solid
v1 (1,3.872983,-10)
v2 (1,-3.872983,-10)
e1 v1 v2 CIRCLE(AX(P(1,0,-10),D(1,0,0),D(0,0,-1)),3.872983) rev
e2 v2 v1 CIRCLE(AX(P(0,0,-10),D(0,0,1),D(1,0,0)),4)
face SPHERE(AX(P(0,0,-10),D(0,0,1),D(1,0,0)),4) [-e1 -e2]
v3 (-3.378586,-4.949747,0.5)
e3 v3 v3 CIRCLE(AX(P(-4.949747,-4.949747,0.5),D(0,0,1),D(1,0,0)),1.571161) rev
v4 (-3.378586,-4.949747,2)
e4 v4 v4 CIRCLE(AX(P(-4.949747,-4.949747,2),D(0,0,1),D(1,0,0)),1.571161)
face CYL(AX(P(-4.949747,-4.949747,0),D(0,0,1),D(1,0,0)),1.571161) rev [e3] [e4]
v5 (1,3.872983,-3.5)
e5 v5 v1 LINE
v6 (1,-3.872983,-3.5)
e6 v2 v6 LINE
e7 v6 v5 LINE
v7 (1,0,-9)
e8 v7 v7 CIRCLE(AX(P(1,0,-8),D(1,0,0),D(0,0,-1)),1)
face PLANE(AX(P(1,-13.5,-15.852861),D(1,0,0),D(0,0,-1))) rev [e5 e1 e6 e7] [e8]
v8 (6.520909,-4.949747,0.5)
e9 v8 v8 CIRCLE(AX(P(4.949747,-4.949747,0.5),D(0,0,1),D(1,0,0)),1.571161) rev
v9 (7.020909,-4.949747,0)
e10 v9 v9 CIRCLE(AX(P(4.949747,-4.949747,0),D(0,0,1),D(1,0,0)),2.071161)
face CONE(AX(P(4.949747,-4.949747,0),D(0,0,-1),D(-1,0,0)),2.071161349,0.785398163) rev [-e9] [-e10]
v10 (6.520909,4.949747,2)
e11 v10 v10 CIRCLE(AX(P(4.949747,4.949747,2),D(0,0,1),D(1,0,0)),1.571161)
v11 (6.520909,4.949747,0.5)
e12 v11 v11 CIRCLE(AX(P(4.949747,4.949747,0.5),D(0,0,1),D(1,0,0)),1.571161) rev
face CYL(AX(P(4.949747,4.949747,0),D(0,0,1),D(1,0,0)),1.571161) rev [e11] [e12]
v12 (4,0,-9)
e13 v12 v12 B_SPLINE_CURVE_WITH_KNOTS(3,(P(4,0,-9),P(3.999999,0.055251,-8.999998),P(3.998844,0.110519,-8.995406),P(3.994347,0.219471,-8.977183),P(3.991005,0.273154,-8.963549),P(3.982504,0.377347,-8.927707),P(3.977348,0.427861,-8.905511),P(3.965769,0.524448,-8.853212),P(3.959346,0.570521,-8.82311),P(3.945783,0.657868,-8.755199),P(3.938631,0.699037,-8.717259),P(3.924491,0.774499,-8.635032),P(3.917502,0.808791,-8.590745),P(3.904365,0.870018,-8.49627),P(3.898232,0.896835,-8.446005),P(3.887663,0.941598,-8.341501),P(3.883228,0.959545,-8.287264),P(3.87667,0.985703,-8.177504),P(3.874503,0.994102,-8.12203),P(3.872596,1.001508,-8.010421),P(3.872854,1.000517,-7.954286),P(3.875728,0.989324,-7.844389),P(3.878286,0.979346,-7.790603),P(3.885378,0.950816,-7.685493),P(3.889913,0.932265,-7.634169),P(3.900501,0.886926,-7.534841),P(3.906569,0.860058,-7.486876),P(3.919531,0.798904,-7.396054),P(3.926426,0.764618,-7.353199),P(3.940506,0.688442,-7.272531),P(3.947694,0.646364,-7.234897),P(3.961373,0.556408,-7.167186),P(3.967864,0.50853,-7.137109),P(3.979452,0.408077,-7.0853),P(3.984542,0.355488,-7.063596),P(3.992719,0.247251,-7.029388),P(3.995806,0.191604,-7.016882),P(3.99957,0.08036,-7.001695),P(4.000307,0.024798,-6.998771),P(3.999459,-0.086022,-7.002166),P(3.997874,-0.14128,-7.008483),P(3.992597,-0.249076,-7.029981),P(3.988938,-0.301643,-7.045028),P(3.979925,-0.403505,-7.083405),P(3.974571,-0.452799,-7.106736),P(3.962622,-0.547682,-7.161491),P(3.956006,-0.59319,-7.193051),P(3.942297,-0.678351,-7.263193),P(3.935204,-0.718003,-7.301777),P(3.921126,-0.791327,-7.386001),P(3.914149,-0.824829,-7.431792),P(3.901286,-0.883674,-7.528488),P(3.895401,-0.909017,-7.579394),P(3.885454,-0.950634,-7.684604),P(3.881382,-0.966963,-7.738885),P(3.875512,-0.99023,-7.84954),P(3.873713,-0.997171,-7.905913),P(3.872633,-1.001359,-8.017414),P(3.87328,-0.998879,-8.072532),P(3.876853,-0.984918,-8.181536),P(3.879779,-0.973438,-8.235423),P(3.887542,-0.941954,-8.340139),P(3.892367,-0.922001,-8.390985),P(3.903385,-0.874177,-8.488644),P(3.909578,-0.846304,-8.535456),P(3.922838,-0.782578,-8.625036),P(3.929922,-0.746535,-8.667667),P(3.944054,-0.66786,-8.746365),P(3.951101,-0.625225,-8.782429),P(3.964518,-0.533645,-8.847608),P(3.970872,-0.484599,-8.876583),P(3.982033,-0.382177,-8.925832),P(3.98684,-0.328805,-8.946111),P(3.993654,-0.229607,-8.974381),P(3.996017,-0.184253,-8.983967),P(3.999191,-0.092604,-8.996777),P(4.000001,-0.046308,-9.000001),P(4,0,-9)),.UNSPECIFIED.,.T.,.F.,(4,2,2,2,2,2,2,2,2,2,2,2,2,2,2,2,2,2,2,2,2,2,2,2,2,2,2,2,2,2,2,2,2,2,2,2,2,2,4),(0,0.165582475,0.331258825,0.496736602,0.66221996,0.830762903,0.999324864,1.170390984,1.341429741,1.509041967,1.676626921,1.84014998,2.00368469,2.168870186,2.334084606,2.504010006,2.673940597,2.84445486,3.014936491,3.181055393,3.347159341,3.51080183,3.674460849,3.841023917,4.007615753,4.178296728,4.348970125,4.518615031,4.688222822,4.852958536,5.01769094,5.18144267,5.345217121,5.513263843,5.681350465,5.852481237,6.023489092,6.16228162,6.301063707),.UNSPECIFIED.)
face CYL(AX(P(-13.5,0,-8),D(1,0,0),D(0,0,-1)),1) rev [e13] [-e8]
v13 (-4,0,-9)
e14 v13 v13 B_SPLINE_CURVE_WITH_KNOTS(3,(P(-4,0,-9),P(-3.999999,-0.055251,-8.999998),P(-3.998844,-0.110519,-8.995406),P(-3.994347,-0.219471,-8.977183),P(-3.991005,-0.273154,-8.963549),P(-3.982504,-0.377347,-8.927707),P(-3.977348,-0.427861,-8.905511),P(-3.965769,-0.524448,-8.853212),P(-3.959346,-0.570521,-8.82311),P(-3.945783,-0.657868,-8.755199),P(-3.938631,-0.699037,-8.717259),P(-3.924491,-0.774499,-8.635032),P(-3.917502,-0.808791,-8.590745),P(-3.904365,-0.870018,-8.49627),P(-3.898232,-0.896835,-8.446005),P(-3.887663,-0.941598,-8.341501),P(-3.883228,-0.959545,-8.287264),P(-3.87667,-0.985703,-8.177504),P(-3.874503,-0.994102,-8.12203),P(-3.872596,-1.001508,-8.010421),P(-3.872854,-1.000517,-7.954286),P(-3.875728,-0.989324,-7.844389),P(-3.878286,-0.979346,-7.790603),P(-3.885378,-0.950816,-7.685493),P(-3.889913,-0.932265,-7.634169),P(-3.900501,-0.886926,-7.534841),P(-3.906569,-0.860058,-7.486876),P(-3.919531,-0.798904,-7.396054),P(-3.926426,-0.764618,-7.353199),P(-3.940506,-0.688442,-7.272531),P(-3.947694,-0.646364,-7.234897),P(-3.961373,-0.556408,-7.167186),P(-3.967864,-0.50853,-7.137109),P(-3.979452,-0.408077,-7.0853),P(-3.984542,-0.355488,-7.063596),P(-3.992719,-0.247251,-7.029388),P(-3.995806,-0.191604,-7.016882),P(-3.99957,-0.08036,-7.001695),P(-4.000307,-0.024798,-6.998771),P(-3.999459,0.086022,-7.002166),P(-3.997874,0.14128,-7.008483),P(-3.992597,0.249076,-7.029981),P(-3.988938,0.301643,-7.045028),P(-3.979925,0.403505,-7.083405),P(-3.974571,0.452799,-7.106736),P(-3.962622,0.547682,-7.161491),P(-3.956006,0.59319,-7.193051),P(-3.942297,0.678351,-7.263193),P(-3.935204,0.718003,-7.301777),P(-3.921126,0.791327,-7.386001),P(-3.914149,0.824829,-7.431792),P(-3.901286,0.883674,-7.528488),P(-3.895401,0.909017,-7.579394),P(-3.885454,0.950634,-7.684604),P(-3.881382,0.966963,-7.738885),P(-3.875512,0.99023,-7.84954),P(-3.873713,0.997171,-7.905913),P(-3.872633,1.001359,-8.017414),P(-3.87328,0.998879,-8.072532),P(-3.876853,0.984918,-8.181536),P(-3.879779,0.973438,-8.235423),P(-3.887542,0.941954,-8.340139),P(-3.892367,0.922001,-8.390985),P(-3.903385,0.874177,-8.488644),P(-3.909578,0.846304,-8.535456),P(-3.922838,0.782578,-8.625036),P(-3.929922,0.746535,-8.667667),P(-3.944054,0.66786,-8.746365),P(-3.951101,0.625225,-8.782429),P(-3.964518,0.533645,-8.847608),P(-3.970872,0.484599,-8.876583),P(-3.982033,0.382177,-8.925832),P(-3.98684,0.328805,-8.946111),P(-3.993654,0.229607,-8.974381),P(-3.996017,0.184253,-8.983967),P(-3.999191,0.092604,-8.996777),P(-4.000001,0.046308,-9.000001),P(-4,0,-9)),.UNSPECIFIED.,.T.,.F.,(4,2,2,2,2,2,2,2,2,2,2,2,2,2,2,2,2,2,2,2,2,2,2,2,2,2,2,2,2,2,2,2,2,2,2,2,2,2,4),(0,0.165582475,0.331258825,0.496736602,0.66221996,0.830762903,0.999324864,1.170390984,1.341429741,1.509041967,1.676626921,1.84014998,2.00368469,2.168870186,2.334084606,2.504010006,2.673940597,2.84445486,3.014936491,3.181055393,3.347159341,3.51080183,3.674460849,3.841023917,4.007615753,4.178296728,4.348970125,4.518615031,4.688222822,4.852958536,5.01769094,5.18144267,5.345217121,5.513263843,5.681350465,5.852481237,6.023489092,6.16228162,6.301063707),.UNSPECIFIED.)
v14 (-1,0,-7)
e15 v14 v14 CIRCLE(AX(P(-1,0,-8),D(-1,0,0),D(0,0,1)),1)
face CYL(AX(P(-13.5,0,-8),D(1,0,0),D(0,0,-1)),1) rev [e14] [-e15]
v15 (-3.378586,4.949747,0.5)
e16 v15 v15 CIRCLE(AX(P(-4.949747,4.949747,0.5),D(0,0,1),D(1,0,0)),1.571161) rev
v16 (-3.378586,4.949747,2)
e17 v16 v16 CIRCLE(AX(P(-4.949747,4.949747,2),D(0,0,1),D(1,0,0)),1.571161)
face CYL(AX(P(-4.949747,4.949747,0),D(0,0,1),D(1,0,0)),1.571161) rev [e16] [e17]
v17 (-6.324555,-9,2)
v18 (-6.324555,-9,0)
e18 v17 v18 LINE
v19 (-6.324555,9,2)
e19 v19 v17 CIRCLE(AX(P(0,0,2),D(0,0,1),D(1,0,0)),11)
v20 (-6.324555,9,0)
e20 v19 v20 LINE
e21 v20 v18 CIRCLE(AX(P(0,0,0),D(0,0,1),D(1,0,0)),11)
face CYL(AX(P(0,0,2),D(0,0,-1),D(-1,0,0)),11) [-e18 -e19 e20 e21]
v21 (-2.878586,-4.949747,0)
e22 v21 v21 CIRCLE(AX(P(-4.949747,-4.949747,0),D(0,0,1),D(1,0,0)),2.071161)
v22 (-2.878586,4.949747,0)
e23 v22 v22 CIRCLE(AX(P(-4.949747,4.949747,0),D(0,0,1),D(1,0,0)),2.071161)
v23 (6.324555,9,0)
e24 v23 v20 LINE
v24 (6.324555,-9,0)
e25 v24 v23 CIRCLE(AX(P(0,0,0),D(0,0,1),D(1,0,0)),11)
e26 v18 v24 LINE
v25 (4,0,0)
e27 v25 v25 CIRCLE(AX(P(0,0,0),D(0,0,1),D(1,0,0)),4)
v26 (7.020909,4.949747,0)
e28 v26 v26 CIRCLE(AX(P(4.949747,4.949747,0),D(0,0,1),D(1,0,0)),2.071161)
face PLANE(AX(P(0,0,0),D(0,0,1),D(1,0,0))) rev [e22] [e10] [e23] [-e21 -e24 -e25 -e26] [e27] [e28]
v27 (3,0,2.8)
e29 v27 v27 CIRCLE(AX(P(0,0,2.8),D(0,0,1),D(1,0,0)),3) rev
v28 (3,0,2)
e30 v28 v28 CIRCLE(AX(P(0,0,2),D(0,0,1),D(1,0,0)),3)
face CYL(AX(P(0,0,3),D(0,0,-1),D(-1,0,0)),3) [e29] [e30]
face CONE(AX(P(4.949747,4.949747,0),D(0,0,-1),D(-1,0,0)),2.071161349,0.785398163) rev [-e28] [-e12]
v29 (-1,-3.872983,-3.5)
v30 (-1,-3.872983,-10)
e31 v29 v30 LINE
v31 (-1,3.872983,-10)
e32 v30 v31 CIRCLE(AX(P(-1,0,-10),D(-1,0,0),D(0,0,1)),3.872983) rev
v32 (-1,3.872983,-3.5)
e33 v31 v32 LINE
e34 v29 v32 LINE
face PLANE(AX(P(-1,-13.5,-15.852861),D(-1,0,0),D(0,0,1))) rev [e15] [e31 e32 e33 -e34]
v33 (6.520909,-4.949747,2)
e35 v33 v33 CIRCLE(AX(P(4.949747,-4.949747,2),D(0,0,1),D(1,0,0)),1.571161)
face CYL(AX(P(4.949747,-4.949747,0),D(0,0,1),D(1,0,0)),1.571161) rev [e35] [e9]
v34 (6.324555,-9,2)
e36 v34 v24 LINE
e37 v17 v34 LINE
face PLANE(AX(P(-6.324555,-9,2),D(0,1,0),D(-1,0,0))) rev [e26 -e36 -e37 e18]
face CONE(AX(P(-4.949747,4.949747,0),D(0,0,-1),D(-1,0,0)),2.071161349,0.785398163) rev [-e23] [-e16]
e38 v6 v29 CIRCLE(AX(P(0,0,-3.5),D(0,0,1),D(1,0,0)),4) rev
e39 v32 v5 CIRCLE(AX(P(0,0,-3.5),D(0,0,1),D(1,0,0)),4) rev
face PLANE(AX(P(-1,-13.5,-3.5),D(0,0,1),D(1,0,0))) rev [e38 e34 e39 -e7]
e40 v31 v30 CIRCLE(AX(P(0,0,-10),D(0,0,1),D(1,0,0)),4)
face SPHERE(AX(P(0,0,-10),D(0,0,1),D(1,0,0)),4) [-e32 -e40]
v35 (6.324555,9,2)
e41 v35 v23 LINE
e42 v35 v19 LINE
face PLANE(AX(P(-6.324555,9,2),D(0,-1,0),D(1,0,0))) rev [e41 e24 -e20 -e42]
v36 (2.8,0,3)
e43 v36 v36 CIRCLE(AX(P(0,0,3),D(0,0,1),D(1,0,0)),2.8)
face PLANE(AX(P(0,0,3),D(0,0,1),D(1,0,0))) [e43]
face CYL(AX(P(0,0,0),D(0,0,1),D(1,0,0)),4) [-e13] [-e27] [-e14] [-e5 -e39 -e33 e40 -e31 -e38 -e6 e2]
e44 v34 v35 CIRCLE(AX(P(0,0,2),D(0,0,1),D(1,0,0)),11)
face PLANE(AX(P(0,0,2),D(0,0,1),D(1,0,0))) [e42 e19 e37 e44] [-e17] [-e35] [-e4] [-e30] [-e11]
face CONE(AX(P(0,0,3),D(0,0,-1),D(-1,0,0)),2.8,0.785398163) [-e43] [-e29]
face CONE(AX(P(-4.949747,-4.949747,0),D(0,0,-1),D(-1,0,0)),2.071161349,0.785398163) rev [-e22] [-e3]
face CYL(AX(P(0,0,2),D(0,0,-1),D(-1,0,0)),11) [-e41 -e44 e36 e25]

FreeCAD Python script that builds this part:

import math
import FreeCAD as App
import Part
import Sketcher

V = App.Vector


def edges_at(feature, points):
    """Names of the edges that pass closest to the given points."""
    edges = feature.Shape.Edges
    near = lambda p: min(range(len(edges)), key=lambda i: edges[i].distToShape(Part.Vertex(*p))[0])
    return sorted({f"Edge{near(p) + 1}" for p in points})


def add_polygon(sketch, points):
    """Adds a closed chain of lines whose ends are joined by coincident constraints."""
    first, n = sketch.GeometryCount, len(points)
    for a, b in zip(points, points[1:] + points[:1]):
        sketch.addGeometry(Part.LineSegment(App.Vector(*a, 0), App.Vector(*b, 0)), False)
    for i in range(n):
        sketch.addConstraint(Sketcher.Constraint("Coincident", first + i, 2, first + (i + 1) % n, 1))

doc = App.newDocument("Part")
body = doc.addObject("PartDesign::Body", "Body")

sketch1 = body.newObject("Sketcher::SketchObject", "Sketch")
sketch1.AttachmentSupport = (doc.getObject("XY_Plane"), [""])
sketch1.MapMode = "FlatFace"
sketch1.addGeometry([
    Part.LineSegment(V(6, 9, 0), V(-6, 9, 0)),
    Part.ArcOfCircle(Part.Circle(V(0, 0, 0), V(0, 0, 1), 11), math.radians(125), math.radians(235)),
    Part.LineSegment(V(-6, -9, 0), V(6, -9, 0)),
    Part.ArcOfCircle(Part.Circle(V(0, 0, 0), V(0, 0, 1), 11), math.radians(-55), math.radians(55)),
], False)
sketch1.addConstraint([
    Sketcher.Constraint("Coincident", 0, 2, 1, 1),
    Sketcher.Constraint("Coincident", 1, 2, 2, 1),
    Sketcher.Constraint("Coincident", 2, 2, 3, 1),
    Sketcher.Constraint("Coincident", 3, 2, 0, 1),
    Sketcher.Constraint("Horizontal", 0),
    Sketcher.Constraint("Horizontal", 2),
    Sketcher.Constraint("Coincident", 1, 3, -1, 1),
    Sketcher.Constraint("Coincident", 3, 3, -1, 1),
    Sketcher.Constraint("Equal", 1, 3),
    Sketcher.Constraint("Vertical", 0, 2, 1, 2),
    Sketcher.Constraint("Radius", 1, 11.0),
    Sketcher.Constraint("DistanceY", -1, 1, 0, 2, 9.0),
])
pad1 = body.newObject("PartDesign::Pad", "Pad")
pad1.Profile = sketch1
pad1.Length = 2

sketch2 = body.newObject("Sketcher::SketchObject", "Sketch001")
sketch2.AttachmentSupport = (doc.getObject("XY_Plane"), [""])
sketch2.MapMode = "FlatFace"
sketch2.AttachmentOffset = App.Placement(V(0, 0, 2), App.Rotation())
sketch2.addGeometry([
    Part.Circle(V(4.9, 4.9, 0), V(0, 0, 1), 1.6),
    Part.Circle(V(4.9, -4.9, 0), V(0, 0, 1), 1.6),
    Part.Circle(V(-4.9, -4.9, 0), V(0, 0, 1), 1.6),
    Part.Circle(V(-4.9, 4.9, 0), V(0, 0, 1), 1.6),
], False)
sketch2.addConstraint([
    Sketcher.Constraint("Equal", 0, 1),
    Sketcher.Constraint("Equal", 1, 2),
    Sketcher.Constraint("Equal", 2, 3),
    Sketcher.Constraint("Symmetric", 0, 3, 2, 3, -1, 1),
    Sketcher.Constraint("Symmetric", 1, 3, 3, 3, -1, 1),
    Sketcher.Constraint("Symmetric", 1, 3, 2, 3, -2),
    Sketcher.Constraint("Diameter", 0, 3.142323),
    Sketcher.Constraint("DistanceX", -1, 1, 0, 3, 4.949747),
    Sketcher.Constraint("DistanceY", -1, 1, 0, 3, 4.949747),
])
pocket1 = body.newObject("PartDesign::Pocket", "Pocket")
pocket1.Profile = sketch2
pocket1.Length = 2
doc.recompute()

chamfer = body.newObject("PartDesign::Chamfer", "Chamfer")
chamfer.Base = (pocket1, edges_at(pocket1, [
    (-6.521, 4.95, 0),
    (-6.521, -4.95, 0),
    (3.379, -4.95, 0),
    (3.379, 4.95, 0),
]))
chamfer.Size = 0.5

sketch3 = body.newObject("Sketcher::SketchObject", "Sketch002")
sketch3.AttachmentSupport = (doc.getObject("XZ_Plane"), [""])
sketch3.MapMode = "FlatFace"
sketch3.addGeometry([
    Part.LineSegment(V(0, -14, 0), V(0, 0, 0)),
    Part.LineSegment(V(0, 0, 0), V(4, 0, 0)),
    Part.LineSegment(V(4, 0, 0), V(4, -10, 0)),
    Part.ArcOfCircle(Part.Circle(V(0, -10, 0), V(0, 0, 1), 4), math.radians(-90), math.radians(0)),
], False)
sketch3.addConstraint([
    Sketcher.Constraint("Coincident", 0, 2, 1, 1),
    Sketcher.Constraint("Coincident", 1, 2, 2, 1),
    Sketcher.Constraint("Tangent", 2, 2, 3, 2),
    Sketcher.Constraint("Coincident", 3, 1, 0, 1),
    Sketcher.Constraint("Vertical", 0),
    Sketcher.Constraint("Horizontal", 1),
    Sketcher.Constraint("Vertical", 2),
    Sketcher.Constraint("Coincident", 0, 2, -1, 1),
    Sketcher.Constraint("PointOnObject", 3, 3, -2),
    Sketcher.Constraint("Radius", 3, 4.0),
    Sketcher.Constraint("DistanceY", 0, 1, 0, 2, 14.0),
])
revolution = body.newObject("PartDesign::Revolution", "Revolution")
revolution.Profile = sketch3
revolution.ReferenceAxis = (sketch3, ["V_Axis"])
revolution.Angle = 360

sketch4 = body.newObject("Sketcher::SketchObject", "Sketch003")
sketch4.AttachmentSupport = (doc.getObject("XZ_Plane"), [""])
sketch4.MapMode = "FlatFace"
add_polygon(sketch4, [(-1, -15.9), (-1, -3.5), (1, -3.5), (1, -15.9)])
sketch4.addConstraint([
    Sketcher.Constraint("Vertical", 0),
    Sketcher.Constraint("Horizontal", 1),
    Sketcher.Constraint("Vertical", 2),
    Sketcher.Constraint("Horizontal", 3),
    Sketcher.Constraint("DistanceX", 1, 1, 1, 2, 2.0),
    Sketcher.Constraint("DistanceX", 0, 2, -1, 1, 1.0),
    Sketcher.Constraint("DistanceY", 0, 2, -1, 1, 3.5),
    Sketcher.Constraint("DistanceY", 0, 1, 0, 2, 12.352861),
])
pocket2 = body.newObject("PartDesign::Pocket", "Pocket001")
pocket2.Profile = sketch4
pocket2.Length = 27
pocket2.Midplane = True

sketch5 = body.newObject("Sketcher::SketchObject", "Sketch004")
sketch5.AttachmentSupport = (doc.getObject("YZ_Plane"), [""])
sketch5.MapMode = "FlatFace"
sketch5.addGeometry(Part.Circle(V(0, -8, 0), V(0, 0, 1), 1), False)
sketch5.addConstraint([
    Sketcher.Constraint("PointOnObject", 0, 3, -2),
    Sketcher.Constraint("Diameter", 0, 2.0),
    Sketcher.Constraint("DistanceY", 0, 3, -1, 1, 8.0),
])
pocket3 = body.newObject("PartDesign::Pocket", "Pocket002")
pocket3.Profile = sketch5
pocket3.Length = 27
pocket3.Midplane = True

sketch6 = body.newObject("Sketcher::SketchObject", "Sketch005")
sketch6.AttachmentSupport = (doc.getObject("XY_Plane"), [""])
sketch6.MapMode = "FlatFace"
sketch6.AttachmentOffset = App.Placement(V(0, 0, 2), App.Rotation())
sketch6.addGeometry(Part.Circle(V(0, 0, 0), V(0, 0, 1), 3), False)
sketch6.addConstraint([
    Sketcher.Constraint("Coincident", 0, 3, -1, 1),
    Sketcher.Constraint("Diameter", 0, 6.0),
])
pad2 = body.newObject("PartDesign::Pad", "Pad001")
pad2.Profile = sketch6
pad2.Length = 1
doc.recompute()

chamfer2 = body.newObject("PartDesign::Chamfer", "Chamfer001")
chamfer2.Base = (pad2, edges_at(pad2, [(-3, 0, 3)]))
chamfer2.Size = 0.2

doc.recompute()
